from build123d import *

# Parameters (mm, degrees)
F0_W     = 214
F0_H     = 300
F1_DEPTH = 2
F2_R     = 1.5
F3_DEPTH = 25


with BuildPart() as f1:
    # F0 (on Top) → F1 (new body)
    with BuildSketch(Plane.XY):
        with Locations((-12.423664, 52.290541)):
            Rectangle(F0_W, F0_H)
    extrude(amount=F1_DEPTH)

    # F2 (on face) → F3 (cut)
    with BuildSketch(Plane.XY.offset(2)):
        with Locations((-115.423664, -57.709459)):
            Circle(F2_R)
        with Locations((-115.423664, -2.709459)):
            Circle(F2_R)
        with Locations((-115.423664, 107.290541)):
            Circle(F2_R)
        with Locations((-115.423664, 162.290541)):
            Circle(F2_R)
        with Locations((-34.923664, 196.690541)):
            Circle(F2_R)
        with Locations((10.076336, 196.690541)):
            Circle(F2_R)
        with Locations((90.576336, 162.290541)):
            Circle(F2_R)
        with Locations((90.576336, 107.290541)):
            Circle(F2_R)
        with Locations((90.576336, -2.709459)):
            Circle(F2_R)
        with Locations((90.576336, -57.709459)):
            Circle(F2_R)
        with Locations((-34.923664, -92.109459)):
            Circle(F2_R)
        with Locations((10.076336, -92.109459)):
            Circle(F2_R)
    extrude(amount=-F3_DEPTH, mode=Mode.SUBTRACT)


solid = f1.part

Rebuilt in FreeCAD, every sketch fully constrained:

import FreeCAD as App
import Part
import Sketcher
Q = App.Units.Quantity


def add_polygon(sketch, points):
    """Adds a closed chain of lines whose ends are joined by coincident constraints."""
    first, n = sketch.GeometryCount, len(points)
    for a, b in zip(points, points[1:] + points[:1]):
        sketch.addGeometry(Part.LineSegment(App.Vector(*a, 0), App.Vector(*b, 0)), False)
    for i in range(n):
        sketch.addConstraint(Sketcher.Constraint("Coincident", first + i, 2, first + (i + 1) % n, 1))

doc = App.newDocument("Part")
params = doc.addObject("Spreadsheet::Sheet", "Params")
for row, (alias, value) in enumerate([
    ("sketch1_width", "214 mm"),
    ("sketch1_height", "300 mm"),
    ("pad1_length", "2 mm"),
    ("sketch2_diameter", "3 mm"),
    ("pocket1_length", "25 mm"),
], start=1):
    params.set(f"A{row}", alias)
    params.set(f"B{row}", "=" + value)
    params.setAlias(f"B{row}", alias)

body = doc.addObject("PartDesign::Body", "Body")

# Sketch on XY plane
sketch1 = body.newObject("Sketcher::SketchObject", "Sketch")
sketch1.AttachmentSupport = (doc.getObject("XY_Plane"), [""])
sketch1.MapMode = "FlatFace"
add_polygon(sketch1, [(-119, 202), (-119, -98), (95, -98), (95, 202)])  # lines 0-3
sketch1.addConstraint([
    Sketcher.Constraint("Vertical", 0),
    Sketcher.Constraint("Horizontal", 1),
    Sketcher.Constraint("Vertical", 2),
    Sketcher.Constraint("Horizontal", 3),
    Sketcher.Constraint("DistanceX", 1, 1, 1, 2, Q("214 mm")),
    Sketcher.Constraint("DistanceY", 0, 2, 0, 1, Q("300 mm")),
    Sketcher.Constraint("DistanceY", 0, 2, -1, 1, Q("97.709459 mm")),
    Sketcher.Constraint("DistanceX", 0, 2, -1, 1, Q("119.423664 mm")),
])
sketch1.setExpression("Constraints[8]", "Params.sketch1_width")
sketch1.setExpression("Constraints[9]", "Params.sketch1_height")
pad1 = body.newObject("PartDesign::Pad", "Pad")
pad1.Profile = sketch1
pad1.setExpression("Length", "Params.pad1_length")

# Sketch on XY plane
sketch2 = body.newObject("Sketcher::SketchObject", "Sketch001")
sketch2.AttachmentSupport = (doc.getObject("XY_Plane"), [""])
sketch2.MapMode = "FlatFace"
sketch2.AttachmentOffset = App.Placement(App.Vector(0, 0, 2), App.Rotation())
sketch2.addGeometry([
    Part.Circle(App.Vector(-115.4, -57.7, 0), App.Vector(0, 0, 1), 1.5),  # 0
    Part.Circle(App.Vector(-115.4, -2.7, 0), App.Vector(0, 0, 1), 1.5),  # 1
    Part.Circle(App.Vector(-115.4, 107.3, 0), App.Vector(0, 0, 1), 1.5),  # 2
    Part.Circle(App.Vector(-115.4, 162.3, 0), App.Vector(0, 0, 1), 1.5),  # 3
    Part.Circle(App.Vector(-34.9, 196.7, 0), App.Vector(0, 0, 1), 1.5),  # 4
    Part.Circle(App.Vector(10.1, 196.7, 0), App.Vector(0, 0, 1), 1.5),  # 5
    Part.Circle(App.Vector(90.6, 162.3, 0), App.Vector(0, 0, 1), 1.5),  # 6
    Part.Circle(App.Vector(90.6, 107.3, 0), App.Vector(0, 0, 1), 1.5),  # 7
    Part.Circle(App.Vector(90.6, -2.7, 0), App.Vector(0, 0, 1), 1.5),  # 8
    Part.Circle(App.Vector(90.6, -57.7, 0), App.Vector(0, 0, 1), 1.5),  # 9
    Part.Circle(App.Vector(-34.9, -92.1, 0), App.Vector(0, 0, 1), 1.5),  # 10
    Part.Circle(App.Vector(10.1, -92.1, 0), App.Vector(0, 0, 1), 1.5),  # 11
], False)
sketch2.addConstraint([
    Sketcher.Constraint("Equal", 0, 1),
    Sketcher.Constraint("Equal", 1, 2),
    Sketcher.Constraint("Equal", 2, 3),
    Sketcher.Constraint("Equal", 3, 4),
    Sketcher.Constraint("Equal", 4, 5),
    Sketcher.Constraint("Equal", 5, 6),
    Sketcher.Constraint("Equal", 6, 7),
    Sketcher.Constraint("Equal", 7, 8),
    Sketcher.Constraint("Equal", 8, 9),
    Sketcher.Constraint("Equal", 9, 10),
    Sketcher.Constraint("Equal", 10, 11),
    Sketcher.Constraint("Horizontal", 4, 3, 5, 3),
    Sketcher.Constraint("Horizontal", 3, 3, 6, 3),
    Sketcher.Constraint("Horizontal", 2, 3, 7, 3),
    Sketcher.Constraint("Horizontal", 1, 3, 8, 3),
    Sketcher.Constraint("Horizontal", 0, 3, 9, 3),
    Sketcher.Constraint("Horizontal", 10, 3, 11, 3),
    Sketcher.Constraint("Vertical", 0, 3, 1, 3),
    Sketcher.Constraint("Vertical", 1, 3, 2, 3),
    Sketcher.Constraint("Vertical", 2, 3, 3, 3),
    Sketcher.Constraint("Vertical", 6, 3, 7, 3),
    Sketcher.Constraint("Vertical", 7, 3, 8, 3),
    Sketcher.Constraint("Vertical", 8, 3, 9, 3),
    Sketcher.Constraint("Vertical", 4, 3, 10, 3),
    Sketcher.Constraint("Vertical", 5, 3, 11, 3),
    Sketcher.Constraint("Diameter", 0, Q("3 mm")),
    Sketcher.Constraint("DistanceY", 0, 3, 1, 3, Q("55 mm")),
    Sketcher.Constraint("DistanceY", 1, 3, 2, 3, Q("110 mm")),
    Sketcher.Constraint("DistanceY", 2, 3, 3, 3, Q("55 mm")),
    Sketcher.Constraint("DistanceX", 4, 3, 5, 3, Q("45 mm")),
    Sketcher.Constraint("DistanceX", 3, 3, 6, 3, Q("206 mm")),
    Sketcher.Constraint("DistanceX", 3, 3, 4, 3, Q("80.5 mm")),
    Sketcher.Constraint("DistanceY", 3, 3, 4, 3, Q("34.4 mm")),
    Sketcher.Constraint("DistanceY", 10, 3, 0, 3, Q("34.4 mm")),
    Sketcher.Constraint("DistanceY", 0, 3, -1, 1, Q("57.709459 mm")),
    Sketcher.Constraint("DistanceX", 0, 3, -1, 1, Q("115.423664 mm")),
])
sketch2.setExpression("Constraints[25]", "Params.sketch2_diameter")
pocket1 = body.newObject("PartDesign::Pocket", "Pocket")
pocket1.Profile = sketch2
pocket1.setExpression("Length", "Params.pocket1_length")

doc.recompute()
